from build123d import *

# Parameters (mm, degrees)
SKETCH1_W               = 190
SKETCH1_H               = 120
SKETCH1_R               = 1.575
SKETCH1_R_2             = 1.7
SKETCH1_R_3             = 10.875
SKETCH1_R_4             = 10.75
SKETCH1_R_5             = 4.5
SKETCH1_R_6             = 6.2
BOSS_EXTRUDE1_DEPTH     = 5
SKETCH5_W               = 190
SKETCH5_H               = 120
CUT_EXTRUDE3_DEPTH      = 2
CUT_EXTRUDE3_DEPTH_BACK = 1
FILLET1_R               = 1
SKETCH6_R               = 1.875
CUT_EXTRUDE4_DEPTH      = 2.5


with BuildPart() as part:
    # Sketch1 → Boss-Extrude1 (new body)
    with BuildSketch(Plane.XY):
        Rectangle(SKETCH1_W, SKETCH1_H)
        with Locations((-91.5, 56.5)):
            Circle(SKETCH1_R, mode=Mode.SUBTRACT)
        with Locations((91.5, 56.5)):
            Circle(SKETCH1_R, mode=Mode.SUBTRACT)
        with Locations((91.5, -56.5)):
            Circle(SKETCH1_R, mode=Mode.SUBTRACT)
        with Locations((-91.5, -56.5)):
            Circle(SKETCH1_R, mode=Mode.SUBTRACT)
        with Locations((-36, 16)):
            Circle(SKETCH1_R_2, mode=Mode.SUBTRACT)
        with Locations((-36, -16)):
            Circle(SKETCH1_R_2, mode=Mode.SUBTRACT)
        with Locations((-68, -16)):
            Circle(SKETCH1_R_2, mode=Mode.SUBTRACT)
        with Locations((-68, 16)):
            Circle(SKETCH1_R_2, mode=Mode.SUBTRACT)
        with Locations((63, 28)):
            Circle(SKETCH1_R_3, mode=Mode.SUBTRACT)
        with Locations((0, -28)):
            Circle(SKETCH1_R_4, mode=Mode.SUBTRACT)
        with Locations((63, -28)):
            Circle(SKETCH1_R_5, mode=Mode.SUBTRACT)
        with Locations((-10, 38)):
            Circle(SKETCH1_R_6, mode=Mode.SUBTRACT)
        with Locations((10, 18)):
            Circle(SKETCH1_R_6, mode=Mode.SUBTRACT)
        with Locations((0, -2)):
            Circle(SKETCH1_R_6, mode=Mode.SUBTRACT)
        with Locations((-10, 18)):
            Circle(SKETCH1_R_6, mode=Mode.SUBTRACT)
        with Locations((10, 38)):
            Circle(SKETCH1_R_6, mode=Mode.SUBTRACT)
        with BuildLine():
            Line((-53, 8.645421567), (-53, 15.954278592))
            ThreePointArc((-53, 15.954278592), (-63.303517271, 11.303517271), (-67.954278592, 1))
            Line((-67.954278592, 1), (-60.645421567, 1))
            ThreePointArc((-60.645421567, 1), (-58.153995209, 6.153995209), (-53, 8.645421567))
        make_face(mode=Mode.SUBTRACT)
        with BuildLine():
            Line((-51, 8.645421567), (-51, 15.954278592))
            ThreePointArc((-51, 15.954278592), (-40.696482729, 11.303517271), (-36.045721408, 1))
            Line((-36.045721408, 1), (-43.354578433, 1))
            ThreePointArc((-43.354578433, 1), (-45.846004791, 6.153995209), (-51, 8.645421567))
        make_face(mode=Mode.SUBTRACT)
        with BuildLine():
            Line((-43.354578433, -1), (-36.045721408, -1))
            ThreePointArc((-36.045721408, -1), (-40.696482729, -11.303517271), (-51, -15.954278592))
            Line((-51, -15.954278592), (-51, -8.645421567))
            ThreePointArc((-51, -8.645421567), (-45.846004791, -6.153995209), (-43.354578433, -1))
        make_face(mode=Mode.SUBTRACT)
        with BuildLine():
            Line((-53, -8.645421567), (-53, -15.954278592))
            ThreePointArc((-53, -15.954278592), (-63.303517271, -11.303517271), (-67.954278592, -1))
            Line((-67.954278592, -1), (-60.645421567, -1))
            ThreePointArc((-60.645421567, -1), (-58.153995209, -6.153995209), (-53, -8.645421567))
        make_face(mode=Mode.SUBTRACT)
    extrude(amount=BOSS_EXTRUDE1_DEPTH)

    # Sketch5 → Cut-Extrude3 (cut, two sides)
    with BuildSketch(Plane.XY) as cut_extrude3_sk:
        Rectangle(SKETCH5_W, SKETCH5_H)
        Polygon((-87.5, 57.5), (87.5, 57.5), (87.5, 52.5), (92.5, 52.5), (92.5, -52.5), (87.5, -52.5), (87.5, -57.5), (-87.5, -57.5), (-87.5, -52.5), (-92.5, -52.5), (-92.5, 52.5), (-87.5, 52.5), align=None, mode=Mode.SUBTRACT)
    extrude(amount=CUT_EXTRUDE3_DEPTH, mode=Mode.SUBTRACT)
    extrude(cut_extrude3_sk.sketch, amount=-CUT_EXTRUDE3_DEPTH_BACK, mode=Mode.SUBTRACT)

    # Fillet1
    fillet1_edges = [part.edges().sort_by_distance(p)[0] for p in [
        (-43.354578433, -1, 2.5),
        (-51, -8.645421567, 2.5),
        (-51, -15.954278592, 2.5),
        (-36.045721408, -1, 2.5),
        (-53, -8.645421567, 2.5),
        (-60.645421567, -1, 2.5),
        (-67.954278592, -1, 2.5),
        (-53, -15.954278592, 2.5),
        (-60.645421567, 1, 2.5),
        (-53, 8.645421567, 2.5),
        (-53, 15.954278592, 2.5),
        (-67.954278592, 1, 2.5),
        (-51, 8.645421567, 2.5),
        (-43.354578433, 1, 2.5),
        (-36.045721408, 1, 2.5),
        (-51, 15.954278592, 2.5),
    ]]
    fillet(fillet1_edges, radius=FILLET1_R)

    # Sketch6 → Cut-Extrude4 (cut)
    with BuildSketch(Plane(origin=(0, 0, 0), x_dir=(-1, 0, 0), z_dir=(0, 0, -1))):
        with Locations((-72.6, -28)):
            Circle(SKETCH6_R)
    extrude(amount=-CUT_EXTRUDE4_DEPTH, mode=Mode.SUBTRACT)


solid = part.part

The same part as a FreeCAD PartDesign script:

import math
import FreeCAD as App
import Part
import Sketcher

V = App.Vector


def edges_at(feature, points):
    """Names of the edges that pass closest to the given points."""
    edges = feature.Shape.Edges
    near = lambda p: min(range(len(edges)), key=lambda i: edges[i].distToShape(Part.Vertex(*p))[0])
    return sorted({f"Edge{near(p) + 1}" for p in points})


def add_polygon(sketch, points):
    """Adds a closed chain of lines whose ends are joined by coincident constraints."""
    first, n = sketch.GeometryCount, len(points)
    for a, b in zip(points, points[1:] + points[:1]):
        sketch.addGeometry(Part.LineSegment(App.Vector(*a, 0), App.Vector(*b, 0)), False)
    for i in range(n):
        sketch.addConstraint(Sketcher.Constraint("Coincident", first + i, 2, first + (i + 1) % n, 1))

doc = App.newDocument("Part")
body = doc.addObject("PartDesign::Body", "Body")

sketch1 = doc.addObject("Sketcher::SketchObject", "Sketch")
body.addObject(sketch1)
sketch1.AttachmentSupport = (doc.XY_Plane, [""])
sketch1.MapMode = "FlatFace"
add_polygon(sketch1, [(-95, 60), (-95, -60), (95, -60), (95, 60)])
sketch1.addGeometry(Part.Circle(V(-91.5, -56.5, 0), V(0, 0, 1), 1.6), False)
sketch1.addGeometry(Part.Circle(V(-68, -16, 0), V(0, 0, 1), 1.7), False)
sketch1.addGeometry(Part.ArcOfCircle(Part.Circle(V(-52, 0, 0), V(0, 0, 1), 8.7), math.radians(-173), math.radians(-97)), False)
sketch1.addGeometry(Part.LineSegment(V(-53, -8.6, 0), V(-53, -16, 0)), False)
sketch1.addGeometry(Part.ArcOfCircle(Part.Circle(V(-52, 0, 0), V(0, 0, 1), 16), math.radians(-176), math.radians(-94)), False)
sketch1.addGeometry(Part.LineSegment(V(-68, -1, 0), V(-60.6, -1, 0)), False)
sketch1.addGeometry(Part.Circle(V(-36, -16, 0), V(0, 0, 1), 1.7), False)
sketch1.addGeometry(Part.Circle(V(0, -28, 0), V(0, 0, 1), 10.8), False)
sketch1.addGeometry(Part.ArcOfCircle(Part.Circle(V(-52, 0, 0), V(0, 0, 1), 8.7), math.radians(-83), math.radians(-7)), False)
sketch1.addGeometry(Part.LineSegment(V(-43.4, -1, 0), V(-36, -1, 0)), False)
sketch1.addGeometry(Part.ArcOfCircle(Part.Circle(V(-52, 0, 0), V(0, 0, 1), 16), math.radians(-86), math.radians(-4)), False)
sketch1.addGeometry(Part.LineSegment(V(-51, -16, 0), V(-51, -8.6, 0)), False)
sketch1.addGeometry(Part.Circle(V(0, -2, 0), V(0, 0, 1), 6.2), False)
sketch1.addGeometry(Part.Circle(V(91.5, -56.5, 0), V(0, 0, 1), 1.6), False)
sketch1.addGeometry(Part.Circle(V(63, -28, 0), V(0, 0, 1), 4.5), False)
sketch1.addGeometry(Part.LineSegment(V(-53, 16, 0), V(-53, 8.6, 0)), False)
sketch1.addGeometry(Part.ArcOfCircle(Part.Circle(V(-52, 0, 0), V(0, 0, 1), 8.7), math.radians(97), math.radians(173)), False)
sketch1.addGeometry(Part.LineSegment(V(-60.6, 1, 0), V(-68, 1, 0)), False)
sketch1.addGeometry(Part.ArcOfCircle(Part.Circle(V(-52, 0, 0), V(0, 0, 1), 16), math.radians(94), math.radians(176)), False)
sketch1.addGeometry(Part.Circle(V(-68, 16, 0), V(0, 0, 1), 1.7), False)
sketch1.addGeometry(Part.ArcOfCircle(Part.Circle(V(-52, 0, 0), V(0, 0, 1), 8.7), math.radians(7), math.radians(83)), False)
sketch1.addGeometry(Part.LineSegment(V(-51, 8.6, 0), V(-51, 16, 0)), False)
sketch1.addGeometry(Part.ArcOfCircle(Part.Circle(V(-52, 0, 0), V(0, 0, 1), 16), math.radians(4), math.radians(86)), False)
sketch1.addGeometry(Part.LineSegment(V(-36, 1, 0), V(-43.4, 1, 0)), False)
sketch1.addGeometry(Part.Circle(V(-36, 16, 0), V(0, 0, 1), 1.7), False)
sketch1.addGeometry(Part.Circle(V(-10, 18, 0), V(0, 0, 1), 6.2), False)
sketch1.addGeometry(Part.Circle(V(-91.5, 56.5, 0), V(0, 0, 1), 1.6), False)
sketch1.addGeometry(Part.Circle(V(-10, 38, 0), V(0, 0, 1), 6.2), False)
sketch1.addGeometry(Part.Circle(V(10, 18, 0), V(0, 0, 1), 6.2), False)
sketch1.addGeometry(Part.Circle(V(63, 28, 0), V(0, 0, 1), 10.9), False)
sketch1.addGeometry(Part.Circle(V(10, 38, 0), V(0, 0, 1), 6.2), False)
sketch1.addGeometry(Part.Circle(V(91.5, 56.5, 0), V(0, 0, 1), 1.6), False)
sketch1.addConstraint([
    Sketcher.Constraint("Coincident", 6, 2, 7, 1),
    Sketcher.Constraint("Coincident", 7, 2, 8, 2),
    Sketcher.Constraint("Coincident", 8, 1, 9, 1),
    Sketcher.Constraint("Coincident", 9, 2, 6, 1),
    Sketcher.Constraint("Coincident", 12, 2, 13, 1),
    Sketcher.Constraint("Coincident", 13, 2, 14, 2),
    Sketcher.Constraint("Coincident", 14, 1, 15, 1),
    Sketcher.Constraint("Coincident", 15, 2, 12, 1),
    Sketcher.Constraint("Coincident", 19, 2, 20, 1),
    Sketcher.Constraint("Coincident", 20, 2, 21, 1),
    Sketcher.Constraint("Coincident", 21, 2, 22, 2),
    Sketcher.Constraint("Coincident", 22, 1, 19, 1),
    Sketcher.Constraint("Coincident", 24, 2, 25, 1),
    Sketcher.Constraint("Coincident", 25, 2, 26, 2),
    Sketcher.Constraint("Coincident", 26, 1, 27, 1),
    Sketcher.Constraint("Coincident", 27, 2, 24, 1),
    Sketcher.Constraint("Vertical", 0),
    Sketcher.Constraint("Horizontal", 1),
    Sketcher.Constraint("Vertical", 2),
    Sketcher.Constraint("Horizontal", 3),
    Sketcher.Constraint("Vertical", 7),
    Sketcher.Constraint("Horizontal", 9),
    Sketcher.Constraint("Horizontal", 13),
    Sketcher.Constraint("Vertical", 15),
    Sketcher.Constraint("Vertical", 19),
    Sketcher.Constraint("Horizontal", 21),
    Sketcher.Constraint("Vertical", 25),
    Sketcher.Constraint("Horizontal", 27),
    Sketcher.Constraint("Coincident", 8, 3, 6, 3),
    Sketcher.Constraint("Coincident", 12, 3, 6, 3),
    Sketcher.Constraint("Coincident", 14, 3, 6, 3),
    Sketcher.Constraint("Coincident", 20, 3, 6, 3),
    Sketcher.Constraint("Coincident", 22, 3, 6, 3),
    Sketcher.Constraint("Coincident", 24, 3, 6, 3),
    Sketcher.Constraint("Coincident", 26, 3, 6, 3),
    Sketcher.Constraint("Equal", 5, 10),
    Sketcher.Constraint("Equal", 6, 12),
    Sketcher.Constraint("Equal", 8, 14),
    Sketcher.Constraint("Equal", 4, 17),
    Sketcher.Constraint("Equal", 12, 20),
    Sketcher.Constraint("Equal", 14, 22),
    Sketcher.Constraint("Equal", 10, 23),
    Sketcher.Constraint("Equal", 20, 24),
    Sketcher.Constraint("Equal", 22, 26),
    Sketcher.Constraint("Equal", 23, 28),
    Sketcher.Constraint("Equal", 16, 29),
    Sketcher.Constraint("Equal", 17, 30),
    Sketcher.Constraint("Equal", 29, 31),
    Sketcher.Constraint("Equal", 31, 32),
    Sketcher.Constraint("Equal", 32, 34),
    Sketcher.Constraint("Equal", 30, 35),
    Sketcher.Constraint("Symmetric", 17, 3, 30, 3, -1, 1),
    Sketcher.Constraint("Symmetric", 4, 3, 35, 3, -1, 1),
    Sketcher.Constraint("Symmetric", 0, 2, 2, 2, -1, 1),
    Sketcher.Constraint("Symmetric", 4, 3, 17, 3, -2),
    Sketcher.Constraint("Symmetric", 29, 3, 32, 3, -2),
    Sketcher.Constraint("Symmetric", 31, 3, 34, 3, -2),
    Sketcher.Constraint("Symmetric", 5, 3, 23, 3, -1),
    Sketcher.Constraint("Symmetric", 10, 3, 28, 3, -1),
    Sketcher.Constraint("Symmetric", 18, 3, 33, 3, -1),
    Sketcher.Constraint("Symmetric", 6, 2, 19, 2, -1),
    Sketcher.Constraint("PointOnObject", 11, 3, -2),
    Sketcher.Constraint("PointOnObject", 16, 3, -2),
    Sketcher.Constraint("Horizontal", 5, 3, 10, 3),
    Sketcher.Constraint("Horizontal", 11, 3, 18, 3),
    Sketcher.Constraint("Horizontal", 9, 2, 12, 2),
    Sketcher.Constraint("Horizontal", 7, 2, 14, 1),
    Sketcher.Constraint("Horizontal", 19, 2, 24, 2),
    Sketcher.Constraint("Horizontal", 21, 2, 26, 1),
    Sketcher.Constraint("Vertical", 29, 3, 31, 3),
    Sketcher.Constraint("Vertical", 9, 2, 20, 2),
    Sketcher.Constraint("Equal", 27, 7),
    Sketcher.Constraint("Diameter", 18, 9.0),
    Sketcher.Constraint("Diameter", 5, 3.4),
    Sketcher.Constraint("Diameter", 11, 21.5),
    Sketcher.Constraint("Diameter", 16, 12.4),
    Sketcher.Constraint("Diameter", 4, 3.15),
    Sketcher.Constraint("Diameter", 33, 21.75),
    Sketcher.Constraint("DistanceX", 1, 1, 1, 2, 190.0),
    Sketcher.Constraint("DistanceY", 0, 2, 0, 1, 120.0),
    Sketcher.Constraint("DistanceX", 5, 3, -1, 1, 68.0),
    Sketcher.Constraint("DistanceY", 5, 3, -1, 1, 16.0),
    Sketcher.Constraint("DistanceX", 6, 3, -1, 1, 52.0),
    Sketcher.Constraint("DistanceX", 10, 3, -1, 1, 36.0),
    Sketcher.Constraint("DistanceY", 11, 3, -1, 1, 28.0),
    Sketcher.Constraint("DistanceY", 16, 3, -1, 1, 2.0),
    Sketcher.Constraint("DistanceX", -1, 1, 18, 3, 63.0),
    Sketcher.Constraint("DistanceX", 29, 3, -1, 1, 10.0),
    Sketcher.Constraint("DistanceY", -1, 1, 29, 3, 18.0),
    Sketcher.Constraint("DistanceY", -1, 1, 31, 3, 38.0),
    Sketcher.Constraint("DistanceX", 6, 2, -1, 1, 53.0),
    Sketcher.Constraint("DistanceX", 4, 3, -1, 1, 91.5),
    Sketcher.Constraint("DistanceY", 4, 3, -1, 1, 56.5),
    Sketcher.Constraint("Radius", 6, 8.703063),
    Sketcher.Constraint("Radius", 8, 15.985587),
])
pad1 = doc.addObject("PartDesign::Pad", "Pad")
body.addObject(pad1)
pad1.Profile = sketch1
pad1.Length = 5

sketch2 = doc.addObject("Sketcher::SketchObject", "Sketch001")
body.addObject(sketch2)
sketch2.AttachmentSupport = (doc.XY_Plane, [""])
sketch2.MapMode = "FlatFace"
add_polygon(sketch2, [(-95, 60), (-95, -60), (95, -60), (95, 60)])
add_polygon(sketch2, [(-88, 52), (-88, 58), (88, 58), (88, 52), (92, 52), (92, -52), (88, -52), (88, -58), (-88, -58), (-88, -52), (-92, -52), (-92, 52)])
sketch2.addConstraint([
    Sketcher.Constraint("Vertical", 0),
    Sketcher.Constraint("Horizontal", 1),
    Sketcher.Constraint("Vertical", 2),
    Sketcher.Constraint("Horizontal", 3),
    Sketcher.Constraint("Vertical", 4),
    Sketcher.Constraint("Horizontal", 5),
    Sketcher.Constraint("Vertical", 6),
    Sketcher.Constraint("Horizontal", 7),
    Sketcher.Constraint("Vertical", 8),
    Sketcher.Constraint("Horizontal", 9),
    Sketcher.Constraint("Vertical", 10),
    Sketcher.Constraint("Horizontal", 11),
    Sketcher.Constraint("Vertical", 12),
    Sketcher.Constraint("Horizontal", 13),
    Sketcher.Constraint("Vertical", 14),
    Sketcher.Constraint("Horizontal", 15),
    Sketcher.Constraint("Symmetric", 0, 2, 2, 2, -1, 1),
    Sketcher.Constraint("Symmetric", 4, 2, 10, 2, -1, 1),
    Sketcher.Constraint("Symmetric", 6, 2, 12, 2, -1, 1),
    Sketcher.Constraint("Symmetric", 8, 2, 14, 2, -1, 1),
    Sketcher.Constraint("Symmetric", 9, 2, 12, 2, -2),
    Sketcher.Constraint("Equal", 15, 4),
    Sketcher.Constraint("DistanceX", 1, 1, 1, 2, 190.0),
    Sketcher.Constraint("DistanceX", 5, 1, 5, 2, 175.0),
    Sketcher.Constraint("DistanceX", 7, 1, 7, 2, 5.0),
    Sketcher.Constraint("DistanceY", 0, 2, 0, 1, 120.0),
    Sketcher.Constraint("DistanceY", 8, 2, 8, 1, 105.0),
])
pocket1 = doc.addObject("PartDesign::Pocket", "Pocket")
body.addObject(pocket1)
pocket1.Profile = sketch2
pocket1.Type = "TwoLengths"
pocket1.Length = 2
pocket1.Length2 = 1
pocket1.Reversed = True
doc.recompute()

fillet = doc.addObject("PartDesign::Fillet", "Fillet")
body.addObject(fillet)
fillet.Base = (pocket1, edges_at(pocket1, [
    (-43.355, -1, 2.5),
    (-51, -8.645, 2.5),
    (-51, -15.954, 2.5),
    (-36.046, -1, 2.5),
    (-53, -8.645, 2.5),
    (-60.645, -1, 2.5),
    (-67.954, -1, 2.5),
    (-53, -15.954, 2.5),
    (-60.645, 1, 2.5),
    (-53, 8.645, 2.5),
    (-53, 15.954, 2.5),
    (-67.954, 1, 2.5),
    (-51, 8.645, 2.5),
    (-43.355, 1, 2.5),
    (-36.046, 1, 2.5),
    (-51, 15.954, 2.5),
]))
fillet.Radius = 1

sketch3 = doc.addObject("Sketcher::SketchObject", "Sketch002")
body.addObject(sketch3)
sketch3.AttachmentSupport = (doc.XY_Plane, [""])
sketch3.MapMode = "FlatFace"
sketch3.addGeometry(Part.Circle(V(72.6, -28, 0), V(0, 0, 1), 1.9), False)
sketch3.addConstraint([
    Sketcher.Constraint("Diameter", 0, 3.75),
    Sketcher.Constraint("DistanceY", 0, 3, -1, 1, 28.0),
    Sketcher.Constraint("DistanceX", -1, 1, 0, 3, 72.6),
])
pocket2 = doc.addObject("PartDesign::Pocket", "Pocket001")
body.addObject(pocket2)
pocket2.Profile = sketch3
pocket2.Length = 2.5
pocket2.Reversed = True

doc.recompute()
